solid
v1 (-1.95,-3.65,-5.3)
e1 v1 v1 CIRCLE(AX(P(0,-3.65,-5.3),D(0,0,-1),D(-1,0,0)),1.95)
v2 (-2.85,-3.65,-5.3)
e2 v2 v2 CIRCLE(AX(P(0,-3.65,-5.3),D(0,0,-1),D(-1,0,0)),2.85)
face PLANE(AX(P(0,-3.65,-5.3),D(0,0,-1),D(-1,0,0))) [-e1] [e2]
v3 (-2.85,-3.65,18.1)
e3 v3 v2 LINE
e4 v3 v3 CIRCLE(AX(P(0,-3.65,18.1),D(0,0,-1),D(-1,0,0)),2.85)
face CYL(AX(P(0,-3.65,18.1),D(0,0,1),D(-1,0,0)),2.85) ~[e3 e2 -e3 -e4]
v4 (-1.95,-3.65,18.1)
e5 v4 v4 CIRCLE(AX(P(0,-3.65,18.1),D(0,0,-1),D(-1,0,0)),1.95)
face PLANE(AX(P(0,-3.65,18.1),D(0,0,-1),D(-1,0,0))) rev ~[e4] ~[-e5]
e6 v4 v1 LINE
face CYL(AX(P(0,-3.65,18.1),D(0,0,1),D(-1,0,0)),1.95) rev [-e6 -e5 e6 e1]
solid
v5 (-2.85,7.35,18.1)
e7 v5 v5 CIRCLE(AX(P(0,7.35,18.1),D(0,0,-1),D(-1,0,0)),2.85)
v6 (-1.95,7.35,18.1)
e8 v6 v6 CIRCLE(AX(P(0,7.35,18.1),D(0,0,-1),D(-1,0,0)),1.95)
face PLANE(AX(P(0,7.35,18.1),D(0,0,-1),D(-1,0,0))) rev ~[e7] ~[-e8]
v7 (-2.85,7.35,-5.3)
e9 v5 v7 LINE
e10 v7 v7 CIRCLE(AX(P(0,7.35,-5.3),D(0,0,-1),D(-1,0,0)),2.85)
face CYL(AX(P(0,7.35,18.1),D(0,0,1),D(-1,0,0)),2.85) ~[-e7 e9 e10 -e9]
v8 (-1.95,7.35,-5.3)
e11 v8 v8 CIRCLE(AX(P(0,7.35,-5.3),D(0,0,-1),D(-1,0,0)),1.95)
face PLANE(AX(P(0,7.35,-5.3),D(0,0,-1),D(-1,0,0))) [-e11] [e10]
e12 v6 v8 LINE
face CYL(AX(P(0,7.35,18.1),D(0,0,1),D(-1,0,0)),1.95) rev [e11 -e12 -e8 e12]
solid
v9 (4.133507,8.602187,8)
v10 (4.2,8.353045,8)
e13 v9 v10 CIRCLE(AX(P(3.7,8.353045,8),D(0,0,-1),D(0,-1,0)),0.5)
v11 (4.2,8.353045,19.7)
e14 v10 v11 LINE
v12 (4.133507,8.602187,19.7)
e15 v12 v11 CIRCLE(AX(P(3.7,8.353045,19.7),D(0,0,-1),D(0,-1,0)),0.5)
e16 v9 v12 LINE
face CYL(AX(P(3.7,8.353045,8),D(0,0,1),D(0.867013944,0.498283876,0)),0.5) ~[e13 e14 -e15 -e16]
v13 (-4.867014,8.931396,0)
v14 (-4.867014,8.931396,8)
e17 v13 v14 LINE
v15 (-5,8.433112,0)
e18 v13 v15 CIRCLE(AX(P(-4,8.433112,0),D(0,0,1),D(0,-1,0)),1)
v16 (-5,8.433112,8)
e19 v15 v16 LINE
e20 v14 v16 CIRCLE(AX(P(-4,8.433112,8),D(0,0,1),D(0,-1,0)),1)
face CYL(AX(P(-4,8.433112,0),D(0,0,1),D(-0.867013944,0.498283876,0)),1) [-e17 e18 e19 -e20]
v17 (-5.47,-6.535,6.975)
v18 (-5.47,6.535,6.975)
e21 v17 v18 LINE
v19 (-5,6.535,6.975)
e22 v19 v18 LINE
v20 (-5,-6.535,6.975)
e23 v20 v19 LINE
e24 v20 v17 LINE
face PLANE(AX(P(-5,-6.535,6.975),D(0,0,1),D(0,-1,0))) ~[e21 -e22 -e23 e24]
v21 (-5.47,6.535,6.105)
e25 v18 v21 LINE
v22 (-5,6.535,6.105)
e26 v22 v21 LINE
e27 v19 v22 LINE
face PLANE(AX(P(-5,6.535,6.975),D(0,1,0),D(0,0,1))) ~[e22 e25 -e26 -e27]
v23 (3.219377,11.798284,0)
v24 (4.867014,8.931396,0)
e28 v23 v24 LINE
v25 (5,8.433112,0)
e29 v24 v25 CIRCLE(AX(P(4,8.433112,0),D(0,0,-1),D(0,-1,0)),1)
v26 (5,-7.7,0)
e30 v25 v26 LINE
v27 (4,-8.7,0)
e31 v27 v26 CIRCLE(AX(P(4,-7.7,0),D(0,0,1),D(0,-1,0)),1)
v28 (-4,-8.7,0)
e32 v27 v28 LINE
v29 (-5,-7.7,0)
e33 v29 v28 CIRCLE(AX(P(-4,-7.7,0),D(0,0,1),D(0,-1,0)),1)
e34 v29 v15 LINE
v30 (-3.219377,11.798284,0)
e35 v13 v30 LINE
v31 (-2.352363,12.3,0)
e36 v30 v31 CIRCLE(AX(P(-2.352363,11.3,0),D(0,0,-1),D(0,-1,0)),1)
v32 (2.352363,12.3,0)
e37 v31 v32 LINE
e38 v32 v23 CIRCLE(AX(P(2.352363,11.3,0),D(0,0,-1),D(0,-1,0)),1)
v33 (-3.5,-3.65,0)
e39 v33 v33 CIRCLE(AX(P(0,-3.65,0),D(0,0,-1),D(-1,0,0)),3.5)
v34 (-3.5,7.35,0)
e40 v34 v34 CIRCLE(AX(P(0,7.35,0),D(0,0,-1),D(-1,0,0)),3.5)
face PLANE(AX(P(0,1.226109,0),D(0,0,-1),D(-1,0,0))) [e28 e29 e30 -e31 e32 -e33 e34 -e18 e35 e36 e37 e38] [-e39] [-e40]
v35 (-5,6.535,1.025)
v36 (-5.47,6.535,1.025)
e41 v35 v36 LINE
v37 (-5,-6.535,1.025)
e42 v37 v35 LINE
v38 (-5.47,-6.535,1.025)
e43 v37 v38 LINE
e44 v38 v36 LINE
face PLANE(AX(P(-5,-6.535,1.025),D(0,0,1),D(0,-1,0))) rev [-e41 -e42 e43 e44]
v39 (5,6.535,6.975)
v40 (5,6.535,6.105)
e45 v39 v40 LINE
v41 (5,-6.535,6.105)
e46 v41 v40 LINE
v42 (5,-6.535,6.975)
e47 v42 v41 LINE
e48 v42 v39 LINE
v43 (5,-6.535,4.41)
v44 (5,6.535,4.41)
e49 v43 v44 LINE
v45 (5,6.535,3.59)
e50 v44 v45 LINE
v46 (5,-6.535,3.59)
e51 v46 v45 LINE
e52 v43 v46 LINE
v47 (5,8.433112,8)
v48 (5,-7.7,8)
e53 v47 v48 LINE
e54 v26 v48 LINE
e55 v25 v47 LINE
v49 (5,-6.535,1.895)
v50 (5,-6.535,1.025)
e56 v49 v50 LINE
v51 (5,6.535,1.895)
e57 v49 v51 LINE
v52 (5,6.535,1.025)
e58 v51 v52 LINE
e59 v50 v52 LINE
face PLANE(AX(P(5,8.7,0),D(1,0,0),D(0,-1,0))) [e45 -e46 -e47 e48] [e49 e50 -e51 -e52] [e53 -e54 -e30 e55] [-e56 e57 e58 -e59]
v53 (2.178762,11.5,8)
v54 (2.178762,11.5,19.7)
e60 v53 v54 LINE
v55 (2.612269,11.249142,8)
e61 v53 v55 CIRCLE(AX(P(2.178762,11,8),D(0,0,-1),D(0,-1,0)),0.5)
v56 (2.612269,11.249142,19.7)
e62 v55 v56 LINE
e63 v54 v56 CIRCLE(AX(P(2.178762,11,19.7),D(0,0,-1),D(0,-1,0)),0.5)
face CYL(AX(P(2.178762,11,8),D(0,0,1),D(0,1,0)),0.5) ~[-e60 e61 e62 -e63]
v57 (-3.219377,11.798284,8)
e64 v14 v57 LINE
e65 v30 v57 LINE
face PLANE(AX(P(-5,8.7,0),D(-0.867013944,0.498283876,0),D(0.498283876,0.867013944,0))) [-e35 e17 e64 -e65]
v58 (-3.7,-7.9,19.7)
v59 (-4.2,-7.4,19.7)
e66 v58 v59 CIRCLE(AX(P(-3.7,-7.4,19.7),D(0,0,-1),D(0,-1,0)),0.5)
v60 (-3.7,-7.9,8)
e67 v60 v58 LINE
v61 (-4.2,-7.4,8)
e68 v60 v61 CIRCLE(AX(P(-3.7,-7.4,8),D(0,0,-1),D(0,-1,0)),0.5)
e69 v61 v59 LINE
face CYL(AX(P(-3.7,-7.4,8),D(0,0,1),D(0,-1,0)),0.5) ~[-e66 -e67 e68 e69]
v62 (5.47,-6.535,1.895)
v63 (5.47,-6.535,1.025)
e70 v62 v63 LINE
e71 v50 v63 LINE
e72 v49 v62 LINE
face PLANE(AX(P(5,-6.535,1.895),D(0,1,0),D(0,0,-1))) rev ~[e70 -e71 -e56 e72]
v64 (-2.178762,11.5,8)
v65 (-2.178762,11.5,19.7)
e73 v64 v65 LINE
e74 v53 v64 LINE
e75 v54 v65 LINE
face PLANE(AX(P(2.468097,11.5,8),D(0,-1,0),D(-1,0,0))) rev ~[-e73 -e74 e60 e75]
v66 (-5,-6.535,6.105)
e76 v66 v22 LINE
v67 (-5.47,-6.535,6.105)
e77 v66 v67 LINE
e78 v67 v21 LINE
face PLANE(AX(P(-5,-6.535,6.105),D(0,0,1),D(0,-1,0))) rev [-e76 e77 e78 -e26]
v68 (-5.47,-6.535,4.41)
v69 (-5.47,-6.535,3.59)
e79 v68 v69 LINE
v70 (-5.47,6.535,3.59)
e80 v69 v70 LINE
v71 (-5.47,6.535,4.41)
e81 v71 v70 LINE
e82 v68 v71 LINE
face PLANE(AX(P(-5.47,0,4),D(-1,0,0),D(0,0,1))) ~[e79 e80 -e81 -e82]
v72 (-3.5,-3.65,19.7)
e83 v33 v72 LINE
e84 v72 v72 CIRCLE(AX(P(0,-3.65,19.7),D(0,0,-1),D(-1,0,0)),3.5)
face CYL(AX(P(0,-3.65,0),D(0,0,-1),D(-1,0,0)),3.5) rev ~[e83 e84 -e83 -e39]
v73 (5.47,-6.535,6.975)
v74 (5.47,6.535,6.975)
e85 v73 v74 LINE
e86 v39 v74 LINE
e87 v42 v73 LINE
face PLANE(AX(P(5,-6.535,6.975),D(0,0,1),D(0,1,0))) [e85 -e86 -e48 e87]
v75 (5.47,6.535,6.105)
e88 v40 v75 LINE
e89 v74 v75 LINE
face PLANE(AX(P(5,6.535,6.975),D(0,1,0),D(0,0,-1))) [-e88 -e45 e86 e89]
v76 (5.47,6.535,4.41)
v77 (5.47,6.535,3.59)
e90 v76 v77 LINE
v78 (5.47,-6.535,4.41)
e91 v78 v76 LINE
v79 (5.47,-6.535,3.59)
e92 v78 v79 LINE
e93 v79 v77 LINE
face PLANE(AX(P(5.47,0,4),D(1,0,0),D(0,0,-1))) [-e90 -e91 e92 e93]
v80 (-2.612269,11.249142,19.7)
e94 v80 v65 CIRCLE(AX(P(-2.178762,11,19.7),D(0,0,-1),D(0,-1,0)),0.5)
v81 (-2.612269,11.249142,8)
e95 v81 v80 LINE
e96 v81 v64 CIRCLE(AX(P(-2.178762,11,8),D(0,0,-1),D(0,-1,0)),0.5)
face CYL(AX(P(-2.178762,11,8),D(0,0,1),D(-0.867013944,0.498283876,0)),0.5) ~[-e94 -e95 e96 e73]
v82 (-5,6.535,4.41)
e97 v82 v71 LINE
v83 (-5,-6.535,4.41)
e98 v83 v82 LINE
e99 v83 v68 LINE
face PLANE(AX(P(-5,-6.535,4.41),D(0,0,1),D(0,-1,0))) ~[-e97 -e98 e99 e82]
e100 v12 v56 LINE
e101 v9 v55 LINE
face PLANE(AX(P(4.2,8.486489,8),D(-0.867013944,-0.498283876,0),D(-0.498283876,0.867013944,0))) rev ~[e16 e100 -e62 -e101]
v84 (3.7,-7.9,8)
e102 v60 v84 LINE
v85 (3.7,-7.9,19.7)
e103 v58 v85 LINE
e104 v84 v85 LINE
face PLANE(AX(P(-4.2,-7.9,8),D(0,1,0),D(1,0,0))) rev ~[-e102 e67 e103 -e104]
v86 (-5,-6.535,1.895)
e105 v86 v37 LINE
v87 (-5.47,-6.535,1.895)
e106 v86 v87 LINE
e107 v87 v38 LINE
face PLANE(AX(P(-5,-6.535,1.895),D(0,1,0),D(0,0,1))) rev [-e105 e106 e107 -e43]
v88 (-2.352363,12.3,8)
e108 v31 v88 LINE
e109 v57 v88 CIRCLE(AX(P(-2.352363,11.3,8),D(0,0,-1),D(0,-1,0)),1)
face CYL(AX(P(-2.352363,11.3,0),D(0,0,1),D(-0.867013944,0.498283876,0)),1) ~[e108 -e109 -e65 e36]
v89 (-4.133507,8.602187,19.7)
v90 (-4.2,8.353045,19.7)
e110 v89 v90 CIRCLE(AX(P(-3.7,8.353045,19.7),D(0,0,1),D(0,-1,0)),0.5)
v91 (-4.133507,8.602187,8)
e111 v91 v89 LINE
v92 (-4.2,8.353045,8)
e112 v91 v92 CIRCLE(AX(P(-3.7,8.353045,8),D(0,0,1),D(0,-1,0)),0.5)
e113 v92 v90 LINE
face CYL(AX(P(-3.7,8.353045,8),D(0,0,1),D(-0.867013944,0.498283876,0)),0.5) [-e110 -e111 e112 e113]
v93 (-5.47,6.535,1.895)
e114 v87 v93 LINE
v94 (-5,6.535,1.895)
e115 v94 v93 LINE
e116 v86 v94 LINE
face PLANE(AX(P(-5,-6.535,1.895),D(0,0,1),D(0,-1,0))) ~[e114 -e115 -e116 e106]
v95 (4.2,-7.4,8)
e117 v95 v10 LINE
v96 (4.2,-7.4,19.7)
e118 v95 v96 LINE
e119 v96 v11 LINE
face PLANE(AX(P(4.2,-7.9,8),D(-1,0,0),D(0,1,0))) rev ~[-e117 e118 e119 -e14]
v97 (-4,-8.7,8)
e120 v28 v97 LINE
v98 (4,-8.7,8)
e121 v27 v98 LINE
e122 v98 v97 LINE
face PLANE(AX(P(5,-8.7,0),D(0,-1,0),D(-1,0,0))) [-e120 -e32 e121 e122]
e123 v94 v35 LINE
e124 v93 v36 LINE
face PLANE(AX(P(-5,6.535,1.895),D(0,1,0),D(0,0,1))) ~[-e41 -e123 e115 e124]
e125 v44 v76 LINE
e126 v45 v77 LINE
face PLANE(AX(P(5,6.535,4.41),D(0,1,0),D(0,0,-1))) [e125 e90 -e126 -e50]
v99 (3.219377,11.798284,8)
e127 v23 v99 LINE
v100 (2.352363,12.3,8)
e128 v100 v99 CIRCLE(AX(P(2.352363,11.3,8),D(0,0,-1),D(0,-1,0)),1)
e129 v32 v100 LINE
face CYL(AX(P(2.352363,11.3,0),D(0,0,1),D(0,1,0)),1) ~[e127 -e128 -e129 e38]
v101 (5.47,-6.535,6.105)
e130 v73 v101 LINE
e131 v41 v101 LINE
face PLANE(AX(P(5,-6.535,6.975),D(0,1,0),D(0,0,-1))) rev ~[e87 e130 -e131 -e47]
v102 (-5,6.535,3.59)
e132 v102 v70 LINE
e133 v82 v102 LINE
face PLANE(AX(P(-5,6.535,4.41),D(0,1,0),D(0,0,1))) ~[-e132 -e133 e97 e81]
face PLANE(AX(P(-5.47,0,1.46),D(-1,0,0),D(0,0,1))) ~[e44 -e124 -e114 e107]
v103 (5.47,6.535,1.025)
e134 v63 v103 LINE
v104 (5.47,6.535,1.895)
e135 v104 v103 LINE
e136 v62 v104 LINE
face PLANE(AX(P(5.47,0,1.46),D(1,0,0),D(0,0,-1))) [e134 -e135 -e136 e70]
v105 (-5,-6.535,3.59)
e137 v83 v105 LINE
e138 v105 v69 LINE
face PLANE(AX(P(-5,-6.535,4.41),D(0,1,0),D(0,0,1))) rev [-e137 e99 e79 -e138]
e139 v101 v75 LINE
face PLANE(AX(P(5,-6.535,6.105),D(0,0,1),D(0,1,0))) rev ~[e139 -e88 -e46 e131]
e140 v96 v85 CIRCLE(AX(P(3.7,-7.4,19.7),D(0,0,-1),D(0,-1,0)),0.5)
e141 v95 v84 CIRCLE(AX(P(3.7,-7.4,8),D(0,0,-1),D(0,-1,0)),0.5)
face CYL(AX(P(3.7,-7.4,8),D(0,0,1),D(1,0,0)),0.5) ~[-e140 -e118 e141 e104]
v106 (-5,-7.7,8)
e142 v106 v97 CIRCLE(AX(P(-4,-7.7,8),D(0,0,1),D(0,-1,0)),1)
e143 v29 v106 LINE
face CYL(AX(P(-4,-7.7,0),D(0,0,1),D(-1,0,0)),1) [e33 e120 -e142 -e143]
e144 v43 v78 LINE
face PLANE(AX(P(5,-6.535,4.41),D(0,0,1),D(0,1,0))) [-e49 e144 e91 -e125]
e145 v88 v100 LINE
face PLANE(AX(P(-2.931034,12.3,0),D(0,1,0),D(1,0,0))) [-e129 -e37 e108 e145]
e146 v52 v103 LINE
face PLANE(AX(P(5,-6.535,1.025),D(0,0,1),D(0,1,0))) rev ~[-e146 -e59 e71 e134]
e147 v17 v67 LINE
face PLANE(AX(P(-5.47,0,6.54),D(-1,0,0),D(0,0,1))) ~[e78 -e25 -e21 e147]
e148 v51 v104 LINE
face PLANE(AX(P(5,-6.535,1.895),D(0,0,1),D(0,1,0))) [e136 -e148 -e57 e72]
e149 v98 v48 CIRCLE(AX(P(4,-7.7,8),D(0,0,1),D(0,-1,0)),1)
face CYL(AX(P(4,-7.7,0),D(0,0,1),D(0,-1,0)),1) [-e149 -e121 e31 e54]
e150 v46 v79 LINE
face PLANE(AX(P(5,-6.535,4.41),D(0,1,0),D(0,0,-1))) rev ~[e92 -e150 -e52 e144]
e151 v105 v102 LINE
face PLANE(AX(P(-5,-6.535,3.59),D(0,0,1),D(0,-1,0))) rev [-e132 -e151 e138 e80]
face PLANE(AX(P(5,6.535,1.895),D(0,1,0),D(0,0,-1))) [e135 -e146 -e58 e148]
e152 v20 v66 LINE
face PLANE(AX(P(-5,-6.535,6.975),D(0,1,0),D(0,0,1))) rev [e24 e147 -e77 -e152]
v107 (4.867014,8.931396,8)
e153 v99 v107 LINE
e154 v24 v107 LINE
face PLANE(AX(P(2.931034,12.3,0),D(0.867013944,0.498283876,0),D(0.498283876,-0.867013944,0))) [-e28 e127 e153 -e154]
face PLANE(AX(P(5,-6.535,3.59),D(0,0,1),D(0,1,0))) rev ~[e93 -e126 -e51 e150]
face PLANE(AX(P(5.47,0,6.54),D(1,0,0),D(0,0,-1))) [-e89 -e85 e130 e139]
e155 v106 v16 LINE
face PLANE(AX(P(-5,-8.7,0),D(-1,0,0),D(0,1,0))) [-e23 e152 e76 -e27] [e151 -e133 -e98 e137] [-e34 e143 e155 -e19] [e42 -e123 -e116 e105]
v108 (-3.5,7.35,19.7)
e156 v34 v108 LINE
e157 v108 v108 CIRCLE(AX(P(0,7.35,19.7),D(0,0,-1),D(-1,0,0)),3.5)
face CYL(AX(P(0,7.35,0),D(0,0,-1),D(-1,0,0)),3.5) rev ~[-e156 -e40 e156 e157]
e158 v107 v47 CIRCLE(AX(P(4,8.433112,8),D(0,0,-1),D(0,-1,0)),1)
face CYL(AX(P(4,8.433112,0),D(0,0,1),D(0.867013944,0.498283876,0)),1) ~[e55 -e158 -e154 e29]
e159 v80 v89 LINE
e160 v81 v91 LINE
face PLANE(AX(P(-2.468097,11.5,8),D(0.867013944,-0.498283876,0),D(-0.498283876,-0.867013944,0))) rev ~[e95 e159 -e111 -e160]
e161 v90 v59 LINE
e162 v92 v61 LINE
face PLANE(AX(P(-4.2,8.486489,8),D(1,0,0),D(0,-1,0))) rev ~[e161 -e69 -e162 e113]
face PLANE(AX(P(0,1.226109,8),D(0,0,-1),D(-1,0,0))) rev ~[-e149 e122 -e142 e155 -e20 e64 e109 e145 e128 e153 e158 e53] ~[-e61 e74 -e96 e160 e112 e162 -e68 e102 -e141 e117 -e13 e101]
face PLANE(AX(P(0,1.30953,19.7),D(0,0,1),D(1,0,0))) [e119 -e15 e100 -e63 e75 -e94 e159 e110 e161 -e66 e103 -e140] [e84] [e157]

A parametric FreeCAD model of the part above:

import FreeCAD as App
import Part
import Sketcher
from FreeCAD import Vector
Q = App.Units.Quantity


def edges_at(feature, points):
    """Names of the edges that pass closest to the given points."""
    edges = feature.Shape.Edges
    near = lambda p: min(range(len(edges)), key=lambda i: edges[i].distToShape(Part.Vertex(*p))[0])
    return sorted({f"Edge{near(p) + 1}" for p in points})


def add_polygon(sketch, points):
    """Adds a closed chain of lines whose ends are joined by coincident constraints."""
    first, n = sketch.GeometryCount, len(points)
    for a, b in zip(points, points[1:] + points[:1]):
        sketch.addGeometry(Part.LineSegment(App.Vector(*a, 0), App.Vector(*b, 0)), False)
    for i in range(n):
        sketch.addConstraint(Sketcher.Constraint("Coincident", first + i, 2, first + (i + 1) % n, 1))

doc = App.newDocument("Part")
body = doc.addObject("PartDesign::Body", "Body")

# Sketch on XY plane
sketch1 = body.newObject("Sketcher::SketchObject", "Sketch")
sketch1.AttachmentSupport = (doc.getObject("XY_Plane"), [""])
sketch1.MapMode = "FlatFace"
add_polygon(sketch1, [(-2.9, 12.3), (-5, 8.7), (-5, -8.7), (5, -8.7), (5, 8.7), (2.9, 12.3)])  # lines 0-5
sketch1.addConstraint([
    Sketcher.Constraint("Vertical", 1),
    Sketcher.Constraint("Horizontal", 2),
    Sketcher.Constraint("Vertical", 3),
    Sketcher.Constraint("Horizontal", 5),
    Sketcher.Constraint("Symmetric", 0, 2, 2, 2, -1, 1),
    Sketcher.Constraint("Horizontal", 0, 2, 3, 2),
    Sketcher.Constraint("Equal", 0, 4),
    Sketcher.Constraint("DistanceX", 2, 1, 2, 2, Q("10 mm")),
    Sketcher.Constraint("DistanceY", 1, 2, 1, 1, Q("17.4 mm")),
    Sketcher.Constraint("DistanceY", 2, 2, 4, 2, Q("21 mm")),
    Sketcher.Constraint("DistanceX", 5, 2, 5, 1, Q("5.862069 mm")),
])
pad1 = body.newObject("PartDesign::Pad", "Pad")
pad1.Profile = sketch1
pad1.Length = 8

# Sketch on XY plane
sketch2 = body.newObject("Sketcher::SketchObject", "Sketch001")
sketch2.AttachmentSupport = (doc.getObject("XY_Plane"), [""])
sketch2.MapMode = "FlatFace"
sketch2.AttachmentOffset = App.Placement(Vector(0, 0, 8), App.Rotation())
add_polygon(sketch2, [(-4.2, 8.5), (-4.2, -7.9), (4.2, -7.9), (4.2, 8.5), (2.5, 11.5), (-2.5, 11.5)])  # lines 0-5
sketch2.addConstraint([
    Sketcher.Constraint("Vertical", 0),
    Sketcher.Constraint("Horizontal", 1),
    Sketcher.Constraint("Vertical", 2),
    Sketcher.Constraint("Horizontal", 4),
    Sketcher.Constraint("Symmetric", 2, 2, 5, 2, -2),
    Sketcher.Constraint("Equal", 3, 5),
    Sketcher.Constraint("DistanceX", 1, 1, 1, 2, Q("8.4 mm")),
    Sketcher.Constraint("DistanceY", 0, 2, -1, 1, Q("7.9 mm")),
    Sketcher.Constraint("DistanceY", -1, 1, 3, 2, Q("11.5 mm")),
    Sketcher.Constraint("DistanceY", 0, 2, 0, 1, Q("16.386489 mm")),
    Sketcher.Constraint("DistanceX", 4, 2, 4, 1, Q("4.936195 mm")),
])
pad2 = body.newObject("PartDesign::Pad", "Pad001")
pad2.Profile = sketch2
pad2.Length = 11.7

# Sketch on XY plane
sketch3 = body.newObject("Sketcher::SketchObject", "Sketch002")
sketch3.AttachmentSupport = (doc.getObject("XY_Plane"), [""])
sketch3.MapMode = "FlatFace"
sketch3.addGeometry([
    Part.Circle(Vector(0, -3.6, 0), Vector(0, 0, 1), 3.5),
    Part.Circle(Vector(0, 7.3, 0), Vector(0, 0, 1), 3.5),
], False)
sketch3.addConstraint([
    Sketcher.Constraint("Equal", 0, 1),
    Sketcher.Constraint("PointOnObject", 0, 3, -2),
    Sketcher.Constraint("PointOnObject", 1, 3, -2),
    Sketcher.Constraint("Diameter", 0, Q("7 mm")),
    Sketcher.Constraint("DistanceY", 0, 3, 1, 3, Q("11 mm")),
    Sketcher.Constraint("DistanceY", 0, 3, -1, 1, Q("3.65 mm")),
])
pocket1 = body.newObject("PartDesign::Pocket", "Pocket")
pocket1.Profile = sketch3
pocket1.Type = "ThroughAll"
pocket1.Reversed = True

# Sketch on YZ plane
sketch4 = body.newObject("Sketcher::SketchObject", "Sketch003")
sketch4.AttachmentSupport = (doc.getObject("YZ_Plane"), [""])
sketch4.MapMode = "FlatFace"
sketch4.AttachmentOffset = App.Placement(Vector(0, 0, 5), App.Rotation())
add_polygon(sketch4, [(6.5, 4.4), (-6.5, 4.4), (-6.5, 3.6), (6.5, 3.6)])  # lines 0-3
add_polygon(sketch4, [(6.5, 7), (-6.5, 7), (-6.5, 6.1), (6.5, 6.1)])  # lines 4-7
add_polygon(sketch4, [(6.5, 1.9), (-6.5, 1.9), (-6.5, 1), (6.5, 1)])  # lines 8-11
sketch4.addConstraint([
    Sketcher.Constraint("Horizontal", 0),
    Sketcher.Constraint("Vertical", 1),
    Sketcher.Constraint("Horizontal", 2),
    Sketcher.Constraint("Vertical", 3),
    Sketcher.Constraint("Horizontal", 4),
    Sketcher.Constraint("Vertical", 5),
    Sketcher.Constraint("Horizontal", 6),
    Sketcher.Constraint("Vertical", 7),
    Sketcher.Constraint("Horizontal", 8),
    Sketcher.Constraint("Vertical", 9),
    Sketcher.Constraint("Horizontal", 10),
    Sketcher.Constraint("Vertical", 11),
    Sketcher.Constraint("Vertical", 1, 2, 4, 2),
    Sketcher.Constraint("Vertical", 3, 2, 6, 2),
    Sketcher.Constraint("Vertical", 5, 2, 8, 2),
    Sketcher.Constraint("Vertical", 7, 2, 10, 2),
    Sketcher.Constraint("Equal", 7, 9),
    Sketcher.Constraint("DistanceX", 0, 2, 0, 1, Q("13.07 mm")),
    Sketcher.Constraint("DistanceY", 1, 2, 1, 1, Q("0.82 mm")),
    Sketcher.Constraint("DistanceY", 5, 2, 5, 1, Q("0.87 mm")),
    Sketcher.Constraint("DistanceY", -1, 1, 0, 2, Q("4.41 mm")),
    Sketcher.Constraint("DistanceY", 8, 2, 5, 2, Q("4.21 mm")),
    Sketcher.Constraint("DistanceX", 0, 2, -1, 1, Q("6.535 mm")),
    Sketcher.Constraint("DistanceY", -1, 1, 4, 2, Q("6.975 mm")),
])
pad3 = body.newObject("PartDesign::Pad", "Pad002")
pad3.Profile = sketch4
pad3.Length = 0.47
doc.recompute()

mirrored = body.newObject("PartDesign::Mirrored", "Mirrored")
mirrored.Originals = [pad3]
mirrored.MirrorPlane = (doc.getObject("YZ_Plane"), [""])
body.Tip = mirrored
doc.recompute()

fillet = body.newObject("PartDesign::Fillet", "Fillet")
fillet.Base = (mirrored, edges_at(mirrored, [
    (5, -8.7, 4),
    (-5, -8.7, 4),
    (-5, 8.7, 4),
    (-2.931, 12.3, 4),
    (2.931, 12.3, 4),
    (5, 8.7, 4),
]))
fillet.Radius = 1
doc.recompute()

fillet2 = body.newObject("PartDesign::Fillet", "Fillet001")
fillet2.Base = (fillet, edges_at(fillet, [
    (-2.468, 11.5, 13.85),
    (-4.2, 8.486, 13.85),
    (-4.2, -7.9, 13.85),
    (4.2, -7.9, 13.85),
    (4.2, 8.486, 13.85),
    (2.468, 11.5, 13.85),
]))
fillet2.Radius = 0.5
body2 = doc.addObject("PartDesign::Body", "Body001")

# Sketch on XY plane
sketch5 = body2.newObject("Sketcher::SketchObject", "Sketch004")
sketch5.AttachmentSupport = (doc.getObject("XY_Plane001"), [""])
sketch5.MapMode = "FlatFace"
sketch5.addGeometry([
    Part.Circle(Vector(0, 7.3, 0), Vector(0, 0, 1), 2.9),
    Part.Circle(Vector(0, 7.3, 0), Vector(0, 0, 1), 1.9),
], False)
sketch5.addConstraint([
    Sketcher.Constraint("Coincident", 1, 3, 0, 3),
    Sketcher.Constraint("PointOnObject", 0, 3, -2),
    Sketcher.Constraint("Diameter", 0, Q("5.7 mm")),
    Sketcher.Constraint("Diameter", 1, Q("3.9 mm")),
    Sketcher.Constraint("DistanceY", -1, 1, 0, 3, Q("7.35 mm")),
])
pad4 = body2.newObject("PartDesign::Pad", "Pad003")
pad4.Profile = sketch5
pad4.Type = "TwoLengths"
pad4.Length = 5.3
pad4.Length2 = 18.1
pad4.Reversed = True
body3 = doc.addObject("PartDesign::Body", "Body002")

# Sketch on XY plane
sketch6 = body3.newObject("Sketcher::SketchObject", "Sketch005")
sketch6.AttachmentSupport = (doc.getObject("XY_Plane002"), [""])
sketch6.MapMode = "FlatFace"
sketch6.addGeometry([
    Part.Circle(Vector(0, -3.6, 0), Vector(0, 0, 1), 2.9),
    Part.Circle(Vector(0, -3.6, 0), Vector(0, 0, 1), 1.9),
], False)
sketch6.addConstraint([
    Sketcher.Constraint("Coincident", 1, 3, 0, 3),
    Sketcher.Constraint("PointOnObject", 0, 3, -2),
    Sketcher.Constraint("Diameter", 0, Q("5.7 mm")),
    Sketcher.Constraint("Diameter", 1, Q("3.9 mm")),
    Sketcher.Constraint("DistanceY", 0, 3, -1, 1, Q("3.65 mm")),
])
pad5 = body3.newObject("PartDesign::Pad", "Pad004")
pad5.Profile = sketch6
pad5.Type = "TwoLengths"
pad5.Length = 5.3
pad5.Length2 = 18.1
pad5.Reversed = True

doc.recompute()
